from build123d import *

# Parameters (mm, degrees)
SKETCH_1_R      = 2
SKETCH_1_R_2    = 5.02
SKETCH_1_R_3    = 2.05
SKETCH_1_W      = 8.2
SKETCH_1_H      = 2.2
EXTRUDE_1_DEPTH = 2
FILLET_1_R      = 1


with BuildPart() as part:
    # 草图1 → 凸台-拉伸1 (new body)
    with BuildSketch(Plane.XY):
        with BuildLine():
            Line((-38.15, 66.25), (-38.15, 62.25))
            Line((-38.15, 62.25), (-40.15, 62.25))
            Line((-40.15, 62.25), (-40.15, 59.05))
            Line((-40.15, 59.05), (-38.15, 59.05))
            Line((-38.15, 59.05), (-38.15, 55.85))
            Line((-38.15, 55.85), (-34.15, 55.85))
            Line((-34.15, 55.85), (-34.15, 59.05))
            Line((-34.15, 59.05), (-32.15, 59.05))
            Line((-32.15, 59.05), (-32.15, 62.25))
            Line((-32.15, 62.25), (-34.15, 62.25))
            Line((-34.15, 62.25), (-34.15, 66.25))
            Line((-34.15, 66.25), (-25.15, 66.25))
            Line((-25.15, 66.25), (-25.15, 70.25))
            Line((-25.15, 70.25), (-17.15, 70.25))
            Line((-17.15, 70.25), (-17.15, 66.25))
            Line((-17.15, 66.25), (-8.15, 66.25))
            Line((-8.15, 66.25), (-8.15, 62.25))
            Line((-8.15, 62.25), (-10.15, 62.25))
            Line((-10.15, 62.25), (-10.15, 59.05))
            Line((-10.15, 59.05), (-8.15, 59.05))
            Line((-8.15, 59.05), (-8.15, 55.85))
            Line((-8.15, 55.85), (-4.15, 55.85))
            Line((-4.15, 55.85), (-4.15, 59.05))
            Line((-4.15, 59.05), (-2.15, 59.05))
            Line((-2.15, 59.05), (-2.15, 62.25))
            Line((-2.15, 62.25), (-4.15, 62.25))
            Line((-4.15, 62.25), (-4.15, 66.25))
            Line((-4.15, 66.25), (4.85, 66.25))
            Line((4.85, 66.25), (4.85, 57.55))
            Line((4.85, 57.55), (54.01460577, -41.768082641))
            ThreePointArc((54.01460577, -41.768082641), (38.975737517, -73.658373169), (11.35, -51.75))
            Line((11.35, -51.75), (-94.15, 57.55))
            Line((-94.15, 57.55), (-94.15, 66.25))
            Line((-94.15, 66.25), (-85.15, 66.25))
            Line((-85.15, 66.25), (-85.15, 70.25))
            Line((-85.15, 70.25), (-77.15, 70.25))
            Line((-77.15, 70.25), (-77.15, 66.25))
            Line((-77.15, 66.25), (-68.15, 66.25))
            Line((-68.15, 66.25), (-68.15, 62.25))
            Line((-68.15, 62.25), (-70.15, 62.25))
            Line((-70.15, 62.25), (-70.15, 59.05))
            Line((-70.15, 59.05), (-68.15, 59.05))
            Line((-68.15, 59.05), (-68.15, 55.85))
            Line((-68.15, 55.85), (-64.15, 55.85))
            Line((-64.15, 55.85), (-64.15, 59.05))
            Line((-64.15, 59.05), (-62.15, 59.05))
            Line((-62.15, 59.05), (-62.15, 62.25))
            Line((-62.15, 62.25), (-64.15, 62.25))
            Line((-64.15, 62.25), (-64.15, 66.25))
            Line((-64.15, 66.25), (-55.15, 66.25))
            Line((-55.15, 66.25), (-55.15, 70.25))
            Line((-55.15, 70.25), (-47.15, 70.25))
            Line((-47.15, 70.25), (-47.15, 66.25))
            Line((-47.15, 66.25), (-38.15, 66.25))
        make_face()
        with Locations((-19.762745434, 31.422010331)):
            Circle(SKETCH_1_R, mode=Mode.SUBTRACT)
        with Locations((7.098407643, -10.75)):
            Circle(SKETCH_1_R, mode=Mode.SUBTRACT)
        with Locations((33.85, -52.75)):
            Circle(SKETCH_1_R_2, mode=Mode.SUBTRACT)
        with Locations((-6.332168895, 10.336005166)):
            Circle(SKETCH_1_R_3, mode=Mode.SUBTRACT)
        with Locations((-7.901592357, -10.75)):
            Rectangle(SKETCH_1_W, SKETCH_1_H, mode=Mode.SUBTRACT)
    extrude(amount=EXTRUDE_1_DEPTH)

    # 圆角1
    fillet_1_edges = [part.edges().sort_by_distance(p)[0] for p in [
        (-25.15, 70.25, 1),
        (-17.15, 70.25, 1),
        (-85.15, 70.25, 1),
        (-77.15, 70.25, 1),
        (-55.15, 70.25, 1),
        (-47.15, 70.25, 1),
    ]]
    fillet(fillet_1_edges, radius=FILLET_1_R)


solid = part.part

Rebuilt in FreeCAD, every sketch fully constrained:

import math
import FreeCAD as App
import Part
import Sketcher
Q = App.Units.Quantity


def edges_at(feature, points):
    """Names of the edges that pass closest to the given points."""
    edges = feature.Shape.Edges
    near = lambda p: min(range(len(edges)), key=lambda i: edges[i].distToShape(Part.Vertex(*p))[0])
    return sorted({f"Edge{near(p) + 1}" for p in points})

doc = App.newDocument("Part")
body = doc.addObject("PartDesign::Body", "Body")

# Sketch on XY plane
sketch1 = doc.addObject("Sketcher::SketchObject", "Sketch")
body.addObject(sketch1)
sketch1.AttachmentSupport = (doc.XY_Plane, [""])
sketch1.MapMode = "FlatFace"
sketch1.addGeometry([
    Part.LineSegment(App.Vector(-38.1, 62.2, 0), App.Vector(-38.1, 66.2, 0)),  # 0
    Part.LineSegment(App.Vector(-38.1, 66.2, 0), App.Vector(-47.1, 66.2, 0)),  # 1
    Part.LineSegment(App.Vector(-47.1, 66.2, 0), App.Vector(-47.1, 70.2, 0)),  # 2
    Part.LineSegment(App.Vector(-47.1, 70.2, 0), App.Vector(-55.1, 70.2, 0)),  # 3
    Part.LineSegment(App.Vector(-55.1, 70.2, 0), App.Vector(-55.1, 66.2, 0)),  # 4
    Part.LineSegment(App.Vector(-55.1, 66.2, 0), App.Vector(-64.2, 66.2, 0)),  # 5
    Part.LineSegment(App.Vector(-64.2, 66.2, 0), App.Vector(-64.2, 62.2, 0)),  # 6
    Part.LineSegment(App.Vector(-64.2, 62.2, 0), App.Vector(-62.1, 62.2, 0)),  # 7
    Part.LineSegment(App.Vector(-62.1, 62.2, 0), App.Vector(-62.1, 59, 0)),  # 8
    Part.LineSegment(App.Vector(-62.1, 59, 0), App.Vector(-64.2, 59, 0)),  # 9
    Part.LineSegment(App.Vector(-64.2, 59, 0), App.Vector(-64.2, 55.9, 0)),  # 10
    Part.LineSegment(App.Vector(-64.2, 55.9, 0), App.Vector(-68.2, 55.9, 0)),  # 11
    Part.LineSegment(App.Vector(-68.2, 55.9, 0), App.Vector(-68.2, 59, 0)),  # 12
    Part.LineSegment(App.Vector(-68.2, 59, 0), App.Vector(-70.2, 59, 0)),  # 13
    Part.LineSegment(App.Vector(-70.2, 59, 0), App.Vector(-70.2, 62.2, 0)),  # 14
    Part.LineSegment(App.Vector(-70.2, 62.2, 0), App.Vector(-68.2, 62.2, 0)),  # 15
    Part.LineSegment(App.Vector(-68.2, 62.2, 0), App.Vector(-68.2, 66.2, 0)),  # 16
    Part.LineSegment(App.Vector(-68.2, 66.2, 0), App.Vector(-77.2, 66.2, 0)),  # 17
    Part.LineSegment(App.Vector(-77.2, 66.2, 0), App.Vector(-77.2, 70.2, 0)),  # 18
    Part.LineSegment(App.Vector(-77.2, 70.2, 0), App.Vector(-85.2, 70.2, 0)),  # 19
    Part.LineSegment(App.Vector(-85.2, 70.2, 0), App.Vector(-85.2, 66.2, 0)),  # 20
    Part.LineSegment(App.Vector(-85.2, 66.2, 0), App.Vector(-94.2, 66.2, 0)),  # 21
    Part.LineSegment(App.Vector(-94.2, 66.2, 0), App.Vector(-94.2, 57.5, 0)),  # 22
    Part.LineSegment(App.Vector(-94.2, 57.5, 0), App.Vector(11.3, -51.8, 0)),  # 23
    Part.ArcOfCircle(Part.Circle(App.Vector(33.9, -51.8, 0), App.Vector(0, 0, 1), 22.5), math.radians(180), math.radians(386)),  # 24
    Part.LineSegment(App.Vector(54, -41.8, 0), App.Vector(4.8, 57.5, 0)),  # 25
    Part.LineSegment(App.Vector(4.8, 57.5, 0), App.Vector(4.8, 66.2, 0)),  # 26
    Part.LineSegment(App.Vector(4.8, 66.2, 0), App.Vector(-4.2, 66.2, 0)),  # 27
    Part.LineSegment(App.Vector(-4.2, 66.2, 0), App.Vector(-4.2, 62.2, 0)),  # 28
    Part.LineSegment(App.Vector(-4.2, 62.2, 0), App.Vector(-2.1, 62.2, 0)),  # 29
    Part.LineSegment(App.Vector(-2.1, 62.2, 0), App.Vector(-2.1, 59, 0)),  # 30
    Part.LineSegment(App.Vector(-2.1, 59, 0), App.Vector(-4.2, 59, 0)),  # 31
    Part.LineSegment(App.Vector(-4.2, 59, 0), App.Vector(-4.2, 55.9, 0)),  # 32
    Part.LineSegment(App.Vector(-4.2, 55.9, 0), App.Vector(-8.2, 55.9, 0)),  # 33
    Part.LineSegment(App.Vector(-8.2, 55.9, 0), App.Vector(-8.2, 59, 0)),  # 34
    Part.LineSegment(App.Vector(-8.2, 59, 0), App.Vector(-10.2, 59, 0)),  # 35
    Part.LineSegment(App.Vector(-10.2, 59, 0), App.Vector(-10.2, 62.2, 0)),  # 36
    Part.LineSegment(App.Vector(-10.2, 62.2, 0), App.Vector(-8.2, 62.2, 0)),  # 37
    Part.LineSegment(App.Vector(-8.2, 62.2, 0), App.Vector(-8.2, 66.2, 0)),  # 38
    Part.LineSegment(App.Vector(-8.2, 66.2, 0), App.Vector(-17.1, 66.2, 0)),  # 39
    Part.LineSegment(App.Vector(-17.1, 66.2, 0), App.Vector(-17.1, 70.2, 0)),  # 40
    Part.LineSegment(App.Vector(-17.1, 70.2, 0), App.Vector(-25.1, 70.2, 0)),  # 41
    Part.LineSegment(App.Vector(-25.1, 70.2, 0), App.Vector(-25.1, 66.2, 0)),  # 42
    Part.LineSegment(App.Vector(-25.1, 66.2, 0), App.Vector(-34.1, 66.2, 0)),  # 43
    Part.LineSegment(App.Vector(-34.1, 66.2, 0), App.Vector(-34.1, 62.2, 0)),  # 44
    Part.LineSegment(App.Vector(-34.1, 62.2, 0), App.Vector(-32.1, 62.2, 0)),  # 45
    Part.LineSegment(App.Vector(-32.1, 62.2, 0), App.Vector(-32.1, 59, 0)),  # 46
    Part.LineSegment(App.Vector(-32.1, 59, 0), App.Vector(-34.1, 59, 0)),  # 47
    Part.LineSegment(App.Vector(-34.1, 59, 0), App.Vector(-34.1, 55.9, 0)),  # 48
    Part.LineSegment(App.Vector(-34.1, 55.9, 0), App.Vector(-38.1, 55.9, 0)),  # 49
    Part.LineSegment(App.Vector(-38.1, 55.9, 0), App.Vector(-38.1, 59, 0)),  # 50
    Part.LineSegment(App.Vector(-38.1, 59, 0), App.Vector(-40.1, 59, 0)),  # 51
    Part.LineSegment(App.Vector(-40.1, 59, 0), App.Vector(-40.1, 62.2, 0)),  # 52
    Part.LineSegment(App.Vector(-40.1, 62.2, 0), App.Vector(-38.1, 62.2, 0)),  # 53
    Part.Circle(App.Vector(33.9, -52.8, 0), App.Vector(0, 0, 1), 5),  # 54
    Part.Circle(App.Vector(7.1, -10.8, 0), App.Vector(0, 0, 1), 2),  # 55
    Part.Circle(App.Vector(-6.3, 10.3, 0), App.Vector(0, 0, 1), 2),  # 56
    Part.LineSegment(App.Vector(-12, -11.8, 0), App.Vector(-12, -9.7, 0)),  # 57
    Part.LineSegment(App.Vector(-12, -9.7, 0), App.Vector(-3.8, -9.7, 0)),  # 58
    Part.LineSegment(App.Vector(-3.8, -9.7, 0), App.Vector(-3.8, -11.8, 0)),  # 59
    Part.LineSegment(App.Vector(-3.8, -11.8, 0), App.Vector(-12, -11.8, 0)),  # 60
    Part.Circle(App.Vector(-19.8, 31.4, 0), App.Vector(0, 0, 1), 2),  # 61
], False)
sketch1.addConstraint([
    Sketcher.Constraint("Coincident", 0, 2, 1, 1),
    Sketcher.Constraint("Coincident", 1, 2, 2, 1),
    Sketcher.Constraint("Coincident", 2, 2, 3, 1),
    Sketcher.Constraint("Coincident", 3, 2, 4, 1),
    Sketcher.Constraint("Coincident", 4, 2, 5, 1),
    Sketcher.Constraint("Coincident", 5, 2, 6, 1),
    Sketcher.Constraint("Coincident", 6, 2, 7, 1),
    Sketcher.Constraint("Coincident", 7, 2, 8, 1),
    Sketcher.Constraint("Coincident", 8, 2, 9, 1),
    Sketcher.Constraint("Coincident", 9, 2, 10, 1),
    Sketcher.Constraint("Coincident", 10, 2, 11, 1),
    Sketcher.Constraint("Coincident", 11, 2, 12, 1),
    Sketcher.Constraint("Coincident", 12, 2, 13, 1),
    Sketcher.Constraint("Coincident", 13, 2, 14, 1),
    Sketcher.Constraint("Coincident", 14, 2, 15, 1),
    Sketcher.Constraint("Coincident", 15, 2, 16, 1),
    Sketcher.Constraint("Coincident", 16, 2, 17, 1),
    Sketcher.Constraint("Coincident", 17, 2, 18, 1),
    Sketcher.Constraint("Coincident", 18, 2, 19, 1),
    Sketcher.Constraint("Coincident", 19, 2, 20, 1),
    Sketcher.Constraint("Coincident", 20, 2, 21, 1),
    Sketcher.Constraint("Coincident", 21, 2, 22, 1),
    Sketcher.Constraint("Coincident", 22, 2, 23, 1),
    Sketcher.Constraint("Coincident", 23, 2, 24, 1),
    Sketcher.Constraint("Tangent", 24, 2, 25, 1),
    Sketcher.Constraint("Coincident", 25, 2, 26, 1),
    Sketcher.Constraint("Coincident", 26, 2, 27, 1),
    Sketcher.Constraint("Coincident", 27, 2, 28, 1),
    Sketcher.Constraint("Coincident", 28, 2, 29, 1),
    Sketcher.Constraint("Coincident", 29, 2, 30, 1),
    Sketcher.Constraint("Coincident", 30, 2, 31, 1),
    Sketcher.Constraint("Coincident", 31, 2, 32, 1),
    Sketcher.Constraint("Coincident", 32, 2, 33, 1),
    Sketcher.Constraint("Coincident", 33, 2, 34, 1),
    Sketcher.Constraint("Coincident", 34, 2, 35, 1),
    Sketcher.Constraint("Coincident", 35, 2, 36, 1),
    Sketcher.Constraint("Coincident", 36, 2, 37, 1),
    Sketcher.Constraint("Coincident", 37, 2, 38, 1),
    Sketcher.Constraint("Coincident", 38, 2, 39, 1),
    Sketcher.Constraint("Coincident", 39, 2, 40, 1),
    Sketcher.Constraint("Coincident", 40, 2, 41, 1),
    Sketcher.Constraint("Coincident", 41, 2, 42, 1),
    Sketcher.Constraint("Coincident", 42, 2, 43, 1),
    Sketcher.Constraint("Coincident", 43, 2, 44, 1),
    Sketcher.Constraint("Coincident", 44, 2, 45, 1),
    Sketcher.Constraint("Coincident", 45, 2, 46, 1),
    Sketcher.Constraint("Coincident", 46, 2, 47, 1),
    Sketcher.Constraint("Coincident", 47, 2, 48, 1),
    Sketcher.Constraint("Coincident", 48, 2, 49, 1),
    Sketcher.Constraint("Coincident", 49, 2, 50, 1),
    Sketcher.Constraint("Coincident", 50, 2, 51, 1),
    Sketcher.Constraint("Coincident", 51, 2, 52, 1),
    Sketcher.Constraint("Coincident", 52, 2, 53, 1),
    Sketcher.Constraint("Coincident", 53, 2, 0, 1),
    Sketcher.Constraint("Coincident", 57, 2, 58, 1),
    Sketcher.Constraint("Coincident", 58, 2, 59, 1),
    Sketcher.Constraint("Coincident", 59, 2, 60, 1),
    Sketcher.Constraint("Coincident", 60, 2, 57, 1),
    Sketcher.Constraint("Vertical", 0),
    Sketcher.Constraint("Horizontal", 1),
    Sketcher.Constraint("Vertical", 2),
    Sketcher.Constraint("Horizontal", 3),
    Sketcher.Constraint("Vertical", 4),
    Sketcher.Constraint("Horizontal", 5),
    Sketcher.Constraint("Vertical", 6),
    Sketcher.Constraint("Horizontal", 7),
    Sketcher.Constraint("Vertical", 8),
    Sketcher.Constraint("Horizontal", 9),
    Sketcher.Constraint("Vertical", 10),
    Sketcher.Constraint("Horizontal", 11),
    Sketcher.Constraint("Vertical", 12),
    Sketcher.Constraint("Horizontal", 13),
    Sketcher.Constraint("Vertical", 14),
    Sketcher.Constraint("Horizontal", 15),
    Sketcher.Constraint("Vertical", 16),
    Sketcher.Constraint("Horizontal", 17),
    Sketcher.Constraint("Vertical", 18),
    Sketcher.Constraint("Horizontal", 19),
    Sketcher.Constraint("Vertical", 20),
    Sketcher.Constraint("Horizontal", 21),
    Sketcher.Constraint("Vertical", 22),
    Sketcher.Constraint("Vertical", 26),
    Sketcher.Constraint("Horizontal", 27),
    Sketcher.Constraint("Vertical", 28),
    Sketcher.Constraint("Horizontal", 29),
    Sketcher.Constraint("Vertical", 30),
    Sketcher.Constraint("Horizontal", 31),
    Sketcher.Constraint("Vertical", 32),
    Sketcher.Constraint("Horizontal", 33),
    Sketcher.Constraint("Vertical", 34),
    Sketcher.Constraint("Horizontal", 35),
    Sketcher.Constraint("Vertical", 36),
    Sketcher.Constraint("Horizontal", 37),
    Sketcher.Constraint("Vertical", 38),
    Sketcher.Constraint("Horizontal", 39),
    Sketcher.Constraint("Vertical", 40),
    Sketcher.Constraint("Horizontal", 41),
    Sketcher.Constraint("Vertical", 42),
    Sketcher.Constraint("Horizontal", 43),
    Sketcher.Constraint("Vertical", 44),
    Sketcher.Constraint("Horizontal", 45),
    Sketcher.Constraint("Vertical", 46),
    Sketcher.Constraint("Horizontal", 47),
    Sketcher.Constraint("Vertical", 48),
    Sketcher.Constraint("Horizontal", 49),
    Sketcher.Constraint("Vertical", 50),
    Sketcher.Constraint("Horizontal", 51),
    Sketcher.Constraint("Vertical", 52),
    Sketcher.Constraint("Horizontal", 53),
    Sketcher.Constraint("Vertical", 57),
    Sketcher.Constraint("Horizontal", 58),
    Sketcher.Constraint("Vertical", 59),
    Sketcher.Constraint("Horizontal", 60),
    Sketcher.Constraint("Equal", 55, 61),
    Sketcher.Constraint("Horizontal", 1, 2, 4, 2),
    Sketcher.Constraint("Horizontal", 9, 2, 12, 2),
    Sketcher.Constraint("Horizontal", 7, 2, 14, 2),
    Sketcher.Constraint("Horizontal", 5, 2, 16, 2),
    Sketcher.Constraint("Horizontal", 3, 2, 18, 2),
    Sketcher.Constraint("Horizontal", 17, 2, 20, 2),
    Sketcher.Constraint("Horizontal", 24, 3, 23, 2),
    Sketcher.Constraint("Horizontal", 22, 2, 25, 2),
    Sketcher.Constraint("Horizontal", 21, 2, 26, 2),
    Sketcher.Constraint("Horizontal", 15, 2, 28, 2),
    Sketcher.Constraint("Horizontal", 13, 2, 30, 2),
    Sketcher.Constraint("Horizontal", 11, 2, 32, 2),
    Sketcher.Constraint("Horizontal", 31, 2, 34, 2),
    Sketcher.Constraint("Horizontal", 29, 2, 36, 2),
    Sketcher.Constraint("Horizontal", 27, 2, 38, 2),
    Sketcher.Constraint("Horizontal", 19, 2, 40, 2),
    Sketcher.Constraint("Horizontal", 39, 2, 42, 2),
    Sketcher.Constraint("Horizontal", 37, 2, 44, 2),
    Sketcher.Constraint("Horizontal", 35, 2, 46, 2),
    Sketcher.Constraint("Horizontal", 33, 2, 48, 2),
    Sketcher.Constraint("Horizontal", 47, 2, 50, 2),
    Sketcher.Constraint("Horizontal", 45, 2, 52, 2),
    Sketcher.Constraint("Vertical", 24, 3, 54, 3),
    Sketcher.Constraint("Vertical", 6, 2, 9, 2),
    Sketcher.Constraint("Vertical", 12, 2, 15, 2),
    Sketcher.Constraint("Vertical", 28, 2, 31, 2),
    Sketcher.Constraint("Vertical", 34, 2, 37, 2),
    Sketcher.Constraint("Vertical", 44, 2, 47, 2),
    Sketcher.Constraint("Vertical", 0, 2, 49, 2),
    Sketcher.Constraint("Equal", 1, 5),
    Sketcher.Constraint("Equal", 9, 13),
    Sketcher.Constraint("Equal", 5, 17),
    Sketcher.Constraint("Equal", 3, 19),
    Sketcher.Constraint("Equal", 17, 21),
    Sketcher.Constraint("Equal", 21, 27),
    Sketcher.Constraint("Equal", 15, 29),
    Sketcher.Constraint("Equal", 11, 33),
    Sketcher.Constraint("Equal", 31, 35),
    Sketcher.Constraint("Equal", 27, 39),
    Sketcher.Constraint("Equal", 19, 41),
    Sketcher.Constraint("Equal", 39, 43),
    Sketcher.Constraint("Equal", 37, 45),
    Sketcher.Constraint("Equal", 33, 49),
    Sketcher.Constraint("Equal", 47, 51),
    Sketcher.Constraint("Equal", 49, 0),
    Sketcher.Constraint("Equal", 0, 2),
    Sketcher.Constraint("Equal", 8, 10),
    Sketcher.Constraint("Diameter", 55, Q("4 mm")),
    Sketcher.Constraint("Diameter", 56, Q("4.1 mm")),
    Sketcher.Constraint("Radius", 24, Q("22.5 mm")),
    Sketcher.Constraint("Diameter", 54, Q("10.04 mm")),
    Sketcher.Constraint("DistanceX", 1, 2, 1, 1, Q("9 mm")),
    Sketcher.Constraint("DistanceX", 3, 2, 3, 1, Q("8 mm")),
    Sketcher.Constraint("DistanceX", 7, 1, 7, 2, Q("2 mm")),
    Sketcher.Constraint("DistanceX", 11, 2, 11, 1, Q("4 mm")),
    Sketcher.Constraint("DistanceX", 58, 1, 58, 2, Q("8.2 mm")),
    Sketcher.Constraint("DistanceY", 8, 2, 8, 1, Q("3.2 mm")),
    Sketcher.Constraint("DistanceY", 22, 2, 22, 1, Q("8.7 mm")),
    Sketcher.Constraint("DistanceY", 57, 1, 57, 2, Q("2.2 mm")),
    Sketcher.Constraint("DistanceX", -1, 1, 24, 3, Q("33.85 mm")),
    Sketcher.Constraint("DistanceY", 24, 3, -1, 1, Q("51.75 mm")),
    Sketcher.Constraint("DistanceY", 54, 3, -1, 1, Q("52.75 mm")),
    Sketcher.Constraint("DistanceY", 55, 3, -1, 1, Q("10.75 mm")),
    Sketcher.Constraint("DistanceX", 0, 2, -1, 1, Q("38.15 mm")),
    Sketcher.Constraint("DistanceY", -1, 1, 0, 2, Q("66.25 mm")),
    Sketcher.Constraint("DistanceY", 57, 2, -1, 1, Q("9.65 mm")),
    Sketcher.Constraint("DistanceX", 56, 3, -1, 1, Q("6.332169 mm")),
    Sketcher.Constraint("DistanceY", -1, 1, 61, 3, Q("31.42201 mm")),
    Sketcher.Constraint("DistanceX", -1, 1, 55, 3, Q("7.098408 mm")),
    Sketcher.Constraint("DistanceY", -1, 1, 56, 3, Q("10.336005 mm")),
    Sketcher.Constraint("DistanceX", 61, 3, -1, 1, Q("19.762745 mm")),
    Sketcher.Constraint("DistanceX", 57, 2, -1, 1, Q("12.001592 mm")),
])
pad1 = doc.addObject("PartDesign::Pad", "Pad")
body.addObject(pad1)
pad1.Profile = sketch1
pad1.Length = 2
doc.recompute()

fillet = doc.addObject("PartDesign::Fillet", "Fillet")
body.addObject(fillet)
fillet.Base = (pad1, edges_at(pad1, [
    (-25.15, 70.25, 1),
    (-17.15, 70.25, 1),
    (-85.15, 70.25, 1),
    (-77.15, 70.25, 1),
    (-55.15, 70.25, 1),
    (-47.15, 70.25, 1),
]))
fillet.Radius = 1

doc.recompute()
